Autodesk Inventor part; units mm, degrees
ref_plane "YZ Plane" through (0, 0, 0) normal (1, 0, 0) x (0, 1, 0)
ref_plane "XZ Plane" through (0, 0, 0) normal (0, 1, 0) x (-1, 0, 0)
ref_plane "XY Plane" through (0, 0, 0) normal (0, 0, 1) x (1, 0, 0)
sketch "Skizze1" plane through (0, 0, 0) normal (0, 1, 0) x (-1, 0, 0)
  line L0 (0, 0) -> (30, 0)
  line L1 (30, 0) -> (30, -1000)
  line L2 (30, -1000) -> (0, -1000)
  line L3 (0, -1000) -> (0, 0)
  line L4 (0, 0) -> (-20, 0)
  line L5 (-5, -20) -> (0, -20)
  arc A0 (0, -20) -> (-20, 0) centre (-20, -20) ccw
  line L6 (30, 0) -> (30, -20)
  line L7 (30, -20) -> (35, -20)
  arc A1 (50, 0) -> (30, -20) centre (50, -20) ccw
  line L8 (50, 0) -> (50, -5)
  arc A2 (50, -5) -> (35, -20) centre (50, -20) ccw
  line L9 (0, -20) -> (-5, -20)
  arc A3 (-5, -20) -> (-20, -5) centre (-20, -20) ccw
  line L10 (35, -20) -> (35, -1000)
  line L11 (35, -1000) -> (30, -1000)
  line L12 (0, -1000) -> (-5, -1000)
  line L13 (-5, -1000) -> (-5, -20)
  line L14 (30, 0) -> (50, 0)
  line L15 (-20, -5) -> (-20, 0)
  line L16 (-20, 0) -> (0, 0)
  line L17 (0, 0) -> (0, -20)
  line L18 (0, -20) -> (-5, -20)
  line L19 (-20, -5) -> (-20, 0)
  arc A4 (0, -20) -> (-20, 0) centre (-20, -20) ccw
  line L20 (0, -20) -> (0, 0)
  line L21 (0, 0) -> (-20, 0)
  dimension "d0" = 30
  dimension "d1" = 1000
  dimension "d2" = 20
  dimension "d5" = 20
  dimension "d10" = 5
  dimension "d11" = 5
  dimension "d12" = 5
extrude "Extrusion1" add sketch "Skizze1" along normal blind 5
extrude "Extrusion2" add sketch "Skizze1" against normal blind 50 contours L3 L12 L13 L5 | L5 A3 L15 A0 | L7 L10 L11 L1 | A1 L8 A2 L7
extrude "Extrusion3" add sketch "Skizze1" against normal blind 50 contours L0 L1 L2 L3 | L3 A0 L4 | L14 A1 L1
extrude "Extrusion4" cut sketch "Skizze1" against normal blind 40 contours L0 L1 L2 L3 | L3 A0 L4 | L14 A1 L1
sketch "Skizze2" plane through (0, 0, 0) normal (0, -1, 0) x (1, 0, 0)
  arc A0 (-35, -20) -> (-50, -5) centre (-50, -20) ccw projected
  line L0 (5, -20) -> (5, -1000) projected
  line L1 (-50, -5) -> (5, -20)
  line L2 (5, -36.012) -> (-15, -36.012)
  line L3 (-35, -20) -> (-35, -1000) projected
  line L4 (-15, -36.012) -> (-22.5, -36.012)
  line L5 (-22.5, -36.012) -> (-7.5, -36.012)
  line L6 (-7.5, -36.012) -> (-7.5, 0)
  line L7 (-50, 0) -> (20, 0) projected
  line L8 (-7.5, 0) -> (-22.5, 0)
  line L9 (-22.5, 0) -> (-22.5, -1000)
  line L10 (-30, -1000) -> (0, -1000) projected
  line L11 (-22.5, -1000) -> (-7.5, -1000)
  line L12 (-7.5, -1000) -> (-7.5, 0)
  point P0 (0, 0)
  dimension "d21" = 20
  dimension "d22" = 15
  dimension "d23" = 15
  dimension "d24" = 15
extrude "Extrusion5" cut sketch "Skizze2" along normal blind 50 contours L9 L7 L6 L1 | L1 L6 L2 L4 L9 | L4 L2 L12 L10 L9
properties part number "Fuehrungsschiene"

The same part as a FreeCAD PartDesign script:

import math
import FreeCAD as App
import Part
import Sketcher

V = App.Vector
Q = App.Units.Quantity


def add_polygon(sketch, points):
    """Adds a closed chain of lines whose ends are joined by coincident constraints."""
    first, n = sketch.GeometryCount, len(points)
    for a, b in zip(points, points[1:] + points[:1]):
        sketch.addGeometry(Part.LineSegment(App.Vector(*a, 0), App.Vector(*b, 0)), False)
    for i in range(n):
        sketch.addConstraint(Sketcher.Constraint("Coincident", first + i, 2, first + (i + 1) % n, 1))

doc = App.newDocument("Part")
body = doc.addObject("PartDesign::Body", "Body")

sketch1 = body.newObject("Sketcher::SketchObject", "Sketch")
sketch1.AttachmentSupport = (doc.getObject("XZ_Plane"), [""])
sketch1.MapMode = "FlatFace"
sketch1.addGeometry(Part.LineSegment(V(20, 0, 0), V(20, -5, 0)), False)
sketch1.addGeometry(Part.ArcOfCircle(Part.Circle(V(20, -20, 0), V(0, 0, 1), 15), math.radians(90), math.radians(180)), False)
sketch1.addGeometry(Part.LineSegment(V(5, -20, 0), V(5, -1000, 0)), False)
sketch1.addGeometry(Part.LineSegment(V(5, -1000, 0), V(-35, -1000, 0)), False)
sketch1.addGeometry(Part.LineSegment(V(-35, -1000, 0), V(-35, -20, 0)), False)
sketch1.addGeometry(Part.ArcOfCircle(Part.Circle(V(-50, -20, 0), V(0, 0, 1), 15), math.radians(0), math.radians(90)), False)
sketch1.addGeometry(Part.LineSegment(V(-50, -5, 0), V(-50, 0, 0)), False)
sketch1.addGeometry(Part.LineSegment(V(-50, 0, 0), V(20, 0, 0)), False)
sketch1.addConstraint(Sketcher.Constraint("Coincident", 0, 2, 1, 1))
sketch1.addConstraint(Sketcher.Constraint("Tangent", 1, 2, 2, 1))
sketch1.addConstraint(Sketcher.Constraint("Coincident", 2, 2, 3, 1))
sketch1.addConstraint(Sketcher.Constraint("Coincident", 3, 2, 4, 1))
sketch1.addConstraint(Sketcher.Constraint("Tangent", 4, 2, 5, 1))
sketch1.addConstraint(Sketcher.Constraint("Coincident", 5, 2, 6, 1))
sketch1.addConstraint(Sketcher.Constraint("Coincident", 6, 2, 7, 1))
sketch1.addConstraint(Sketcher.Constraint("Coincident", 7, 2, 0, 1))
sketch1.addConstraint(Sketcher.Constraint("Vertical", 0))
sketch1.addConstraint(Sketcher.Constraint("Vertical", 2))
sketch1.addConstraint(Sketcher.Constraint("Horizontal", 3))
sketch1.addConstraint(Sketcher.Constraint("Vertical", 4))
sketch1.addConstraint(Sketcher.Constraint("Vertical", 6))
sketch1.addConstraint(Sketcher.Constraint("Horizontal", 7))
sketch1.addConstraint(Sketcher.Constraint("Equal", 1, 5))
sketch1.addConstraint(Sketcher.Constraint("PointOnObject", 6, 2, -1))
sketch1.addConstraint(Sketcher.Constraint("Horizontal", 1, 3, 5, 3))
sketch1.addConstraint(Sketcher.Constraint("Vertical", 1, 3, 0, 2))
sketch1.addConstraint(Sketcher.Constraint("Radius", 1, Q("15 mm")))
sketch1.addConstraint(Sketcher.Constraint("DistanceY", 0, 2, 0, 1, Q("5 mm")))
sketch1.addConstraint(Sketcher.Constraint("DistanceX", -1, 1, 1, 3, Q("20 mm")))
sketch1.addConstraint(Sketcher.Constraint("DistanceY", 2, 2, -1, 1, Q("1000 mm")))
sketch1.addConstraint(Sketcher.Constraint("DistanceX", 3, 2, 3, 1, Q("40 mm")))
sketch1.addConstraint(Sketcher.Constraint("DistanceX", 7, 1, 7, 2, Q("70 mm")))
pad1 = body.newObject("PartDesign::Pad", "Pad")
pad1.Profile = sketch1
pad1.Length = 5
pad1.Reversed = True

sketch2 = body.newObject("Sketcher::SketchObject", "Sketch001")
sketch2.AttachmentSupport = (doc.getObject("XZ_Plane"), [""])
sketch2.MapMode = "FlatFace"
sketch2.addGeometry(Part.LineSegment(V(0, -1000, 0), V(0, -20, 0)), False)
sketch2.addGeometry(Part.ArcOfCircle(Part.Circle(V(20, -20, 0), V(0, 0, 1), 20), math.radians(90), math.radians(180)), False)
sketch2.addGeometry(Part.LineSegment(V(20, 0, 0), V(20, -5, 0)), False)
sketch2.addGeometry(Part.ArcOfCircle(Part.Circle(V(20, -20, 0), V(0, 0, 1), 15), math.radians(90), math.radians(180)), False)
sketch2.addGeometry(Part.LineSegment(V(5, -20, 0), V(5, -1000, 0)), False)
sketch2.addGeometry(Part.LineSegment(V(5, -1000, 0), V(0, -1000, 0)), False)
sketch2.addGeometry(Part.LineSegment(V(-35, -1000, 0), V(-35, -20, 0)), False)
sketch2.addGeometry(Part.ArcOfCircle(Part.Circle(V(-50, -20, 0), V(0, 0, 1), 15), math.radians(0), math.radians(90)), False)
sketch2.addGeometry(Part.LineSegment(V(-50, -5, 0), V(-50, 0, 0)), False)
sketch2.addGeometry(Part.ArcOfCircle(Part.Circle(V(-50, -20, 0), V(0, 0, 1), 20), math.radians(0), math.radians(90)), False)
sketch2.addGeometry(Part.LineSegment(V(-30, -20, 0), V(-30, -1000, 0)), False)
sketch2.addGeometry(Part.LineSegment(V(-30, -1000, 0), V(-35, -1000, 0)), False)
sketch2.addConstraint(Sketcher.Constraint("Tangent", 0, 2, 1, 2))
sketch2.addConstraint(Sketcher.Constraint("Coincident", 1, 1, 2, 1))
sketch2.addConstraint(Sketcher.Constraint("Coincident", 2, 2, 3, 1))
sketch2.addConstraint(Sketcher.Constraint("Tangent", 3, 2, 4, 1))
sketch2.addConstraint(Sketcher.Constraint("Coincident", 4, 2, 5, 1))
sketch2.addConstraint(Sketcher.Constraint("Coincident", 5, 2, 0, 1))
sketch2.addConstraint(Sketcher.Constraint("Tangent", 6, 2, 7, 1))
sketch2.addConstraint(Sketcher.Constraint("Coincident", 7, 2, 8, 1))
sketch2.addConstraint(Sketcher.Constraint("Coincident", 8, 2, 9, 2))
sketch2.addConstraint(Sketcher.Constraint("Tangent", 9, 1, 10, 1))
sketch2.addConstraint(Sketcher.Constraint("Coincident", 10, 2, 11, 1))
sketch2.addConstraint(Sketcher.Constraint("Coincident", 11, 2, 6, 1))
sketch2.addConstraint(Sketcher.Constraint("Vertical", 0))
sketch2.addConstraint(Sketcher.Constraint("Vertical", 2))
sketch2.addConstraint(Sketcher.Constraint("Vertical", 4))
sketch2.addConstraint(Sketcher.Constraint("Horizontal", 5))
sketch2.addConstraint(Sketcher.Constraint("Vertical", 6))
sketch2.addConstraint(Sketcher.Constraint("Vertical", 8))
sketch2.addConstraint(Sketcher.Constraint("Vertical", 10))
sketch2.addConstraint(Sketcher.Constraint("Horizontal", 11))
sketch2.addConstraint(Sketcher.Constraint("Coincident", 3, 3, 1, 3))
sketch2.addConstraint(Sketcher.Constraint("Coincident", 9, 3, 7, 3))
sketch2.addConstraint(Sketcher.Constraint("Equal", 3, 7))
sketch2.addConstraint(Sketcher.Constraint("Equal", 1, 9))
sketch2.addConstraint(Sketcher.Constraint("PointOnObject", 0, 2, -2))
sketch2.addConstraint(Sketcher.Constraint("PointOnObject", 1, 1, -1))
sketch2.addConstraint(Sketcher.Constraint("PointOnObject", 8, 2, -1))
sketch2.addConstraint(Sketcher.Constraint("Horizontal", 5, 2, 10, 2))
sketch2.addConstraint(Sketcher.Constraint("Vertical", 3, 3, 1, 1))
sketch2.addConstraint(Sketcher.Constraint("Vertical", 9, 3, 7, 2))
sketch2.addConstraint(Sketcher.Constraint("Radius", 1, Q("20 mm")))
sketch2.addConstraint(Sketcher.Constraint("Radius", 3, Q("15 mm")))
sketch2.addConstraint(Sketcher.Constraint("DistanceY", 4, 2, -1, 1, Q("1000 mm")))
sketch2.addConstraint(Sketcher.Constraint("DistanceX", 9, 1, -1, 1, Q("30 mm")))
pad2 = body.newObject("PartDesign::Pad", "Pad001")
pad2.Profile = sketch2
pad2.Length = 50

sketch3 = body.newObject("Sketcher::SketchObject", "Sketch002")
sketch3.AttachmentSupport = (doc.getObject("XZ_Plane"), [""])
sketch3.MapMode = "FlatFace"
sketch3.addGeometry(Part.ArcOfCircle(Part.Circle(V(20, -20, 0), V(0, 0, 1), 20), math.radians(90), math.radians(180)), False)
sketch3.addGeometry(Part.LineSegment(V(0, -20, 0), V(0, -1000, 0)), False)
sketch3.addGeometry(Part.LineSegment(V(0, -1000, 0), V(-30, -1000, 0)), False)
sketch3.addGeometry(Part.LineSegment(V(-30, -1000, 0), V(-30, -20, 0)), False)
sketch3.addGeometry(Part.ArcOfCircle(Part.Circle(V(-50, -20, 0), V(0, 0, 1), 20), math.radians(0), math.radians(90)), False)
sketch3.addGeometry(Part.LineSegment(V(-50, 0, 0), V(20, 0, 0)), False)
sketch3.addConstraint(Sketcher.Constraint("Tangent", 0, 2, 1, 1))
sketch3.addConstraint(Sketcher.Constraint("Coincident", 1, 2, 2, 1))
sketch3.addConstraint(Sketcher.Constraint("Coincident", 2, 2, 3, 1))
sketch3.addConstraint(Sketcher.Constraint("Tangent", 3, 2, 4, 1))
sketch3.addConstraint(Sketcher.Constraint("Tangent", 4, 2, 5, 1))
sketch3.addConstraint(Sketcher.Constraint("Tangent", 5, 2, 0, 1))
sketch3.addConstraint(Sketcher.Constraint("Vertical", 1))
sketch3.addConstraint(Sketcher.Constraint("Horizontal", 2))
sketch3.addConstraint(Sketcher.Constraint("Vertical", 3))
sketch3.addConstraint(Sketcher.Constraint("Horizontal", 5))
sketch3.addConstraint(Sketcher.Constraint("Equal", 0, 4))
sketch3.addConstraint(Sketcher.Constraint("PointOnObject", 0, 2, -2))
sketch3.addConstraint(Sketcher.Constraint("PointOnObject", 4, 2, -1))
sketch3.addConstraint(Sketcher.Constraint("Radius", 0, Q("20 mm")))
sketch3.addConstraint(Sketcher.Constraint("DistanceX", 2, 2, 2, 1, Q("30 mm")))
sketch3.addConstraint(Sketcher.Constraint("DistanceY", 1, 2, -1, 1, Q("1000 mm")))
pad3 = body.newObject("PartDesign::Pad", "Pad002")
pad3.Profile = sketch3
pad3.Length = 50

sketch4 = body.newObject("Sketcher::SketchObject", "Sketch003")
sketch4.AttachmentSupport = (doc.getObject("XZ_Plane"), [""])
sketch4.MapMode = "FlatFace"
sketch4.addGeometry(Part.ArcOfCircle(Part.Circle(V(20, -20, 0), V(0, 0, 1), 20), math.radians(90), math.radians(180)), False)
sketch4.addGeometry(Part.LineSegment(V(0, -20, 0), V(0, -1000, 0)), False)
sketch4.addGeometry(Part.LineSegment(V(0, -1000, 0), V(-30, -1000, 0)), False)
sketch4.addGeometry(Part.LineSegment(V(-30, -1000, 0), V(-30, -20, 0)), False)
sketch4.addGeometry(Part.ArcOfCircle(Part.Circle(V(-50, -20, 0), V(0, 0, 1), 20), math.radians(0), math.radians(90)), False)
sketch4.addGeometry(Part.LineSegment(V(-50, 0, 0), V(20, 0, 0)), False)
sketch4.addConstraint(Sketcher.Constraint("Tangent", 0, 2, 1, 1))
sketch4.addConstraint(Sketcher.Constraint("Coincident", 1, 2, 2, 1))
sketch4.addConstraint(Sketcher.Constraint("Coincident", 2, 2, 3, 1))
sketch4.addConstraint(Sketcher.Constraint("Tangent", 3, 2, 4, 1))
sketch4.addConstraint(Sketcher.Constraint("Tangent", 4, 2, 5, 1))
sketch4.addConstraint(Sketcher.Constraint("Tangent", 5, 2, 0, 1))
sketch4.addConstraint(Sketcher.Constraint("Vertical", 1))
sketch4.addConstraint(Sketcher.Constraint("Horizontal", 2))
sketch4.addConstraint(Sketcher.Constraint("Vertical", 3))
sketch4.addConstraint(Sketcher.Constraint("Horizontal", 5))
sketch4.addConstraint(Sketcher.Constraint("Equal", 0, 4))
sketch4.addConstraint(Sketcher.Constraint("PointOnObject", 0, 2, -2))
sketch4.addConstraint(Sketcher.Constraint("PointOnObject", 4, 2, -1))
sketch4.addConstraint(Sketcher.Constraint("Radius", 0, Q("20 mm")))
sketch4.addConstraint(Sketcher.Constraint("DistanceX", 2, 2, 2, 1, Q("30 mm")))
sketch4.addConstraint(Sketcher.Constraint("DistanceY", 1, 2, -1, 1, Q("1000 mm")))
pocket1 = body.newObject("PartDesign::Pocket", "Pocket")
pocket1.Profile = sketch4
pocket1.Length = 40
pocket1.Reversed = True

sketch5 = body.newObject("Sketcher::SketchObject", "Sketch004")
sketch5.AttachmentSupport = (doc.getObject("XZ_Plane"), [""])
sketch5.MapMode = "FlatFace"
add_polygon(sketch5, [(-22, 0), (-22, -1000), (-8, -1000), (-8, 0)])
sketch5.addConstraint(Sketcher.Constraint("Vertical", 0))
sketch5.addConstraint(Sketcher.Constraint("Horizontal", 1))
sketch5.addConstraint(Sketcher.Constraint("Vertical", 2))
sketch5.addConstraint(Sketcher.Constraint("Horizontal", 3))
sketch5.addConstraint(Sketcher.Constraint("PointOnObject", 2, 2, -1))
sketch5.addConstraint(Sketcher.Constraint("DistanceX", 1, 1, 1, 2, Q("15 mm")))
sketch5.addConstraint(Sketcher.Constraint("DistanceY", 0, 2, 0, 1, Q("1000 mm")))
sketch5.addConstraint(Sketcher.Constraint("DistanceX", 0, 2, -1, 1, Q("22.5 mm")))
pocket2 = body.newObject("PartDesign::Pocket", "Pocket001")
pocket2.Profile = sketch5
pocket2.Length = 50
pocket2.Reversed = True

doc.recompute()
